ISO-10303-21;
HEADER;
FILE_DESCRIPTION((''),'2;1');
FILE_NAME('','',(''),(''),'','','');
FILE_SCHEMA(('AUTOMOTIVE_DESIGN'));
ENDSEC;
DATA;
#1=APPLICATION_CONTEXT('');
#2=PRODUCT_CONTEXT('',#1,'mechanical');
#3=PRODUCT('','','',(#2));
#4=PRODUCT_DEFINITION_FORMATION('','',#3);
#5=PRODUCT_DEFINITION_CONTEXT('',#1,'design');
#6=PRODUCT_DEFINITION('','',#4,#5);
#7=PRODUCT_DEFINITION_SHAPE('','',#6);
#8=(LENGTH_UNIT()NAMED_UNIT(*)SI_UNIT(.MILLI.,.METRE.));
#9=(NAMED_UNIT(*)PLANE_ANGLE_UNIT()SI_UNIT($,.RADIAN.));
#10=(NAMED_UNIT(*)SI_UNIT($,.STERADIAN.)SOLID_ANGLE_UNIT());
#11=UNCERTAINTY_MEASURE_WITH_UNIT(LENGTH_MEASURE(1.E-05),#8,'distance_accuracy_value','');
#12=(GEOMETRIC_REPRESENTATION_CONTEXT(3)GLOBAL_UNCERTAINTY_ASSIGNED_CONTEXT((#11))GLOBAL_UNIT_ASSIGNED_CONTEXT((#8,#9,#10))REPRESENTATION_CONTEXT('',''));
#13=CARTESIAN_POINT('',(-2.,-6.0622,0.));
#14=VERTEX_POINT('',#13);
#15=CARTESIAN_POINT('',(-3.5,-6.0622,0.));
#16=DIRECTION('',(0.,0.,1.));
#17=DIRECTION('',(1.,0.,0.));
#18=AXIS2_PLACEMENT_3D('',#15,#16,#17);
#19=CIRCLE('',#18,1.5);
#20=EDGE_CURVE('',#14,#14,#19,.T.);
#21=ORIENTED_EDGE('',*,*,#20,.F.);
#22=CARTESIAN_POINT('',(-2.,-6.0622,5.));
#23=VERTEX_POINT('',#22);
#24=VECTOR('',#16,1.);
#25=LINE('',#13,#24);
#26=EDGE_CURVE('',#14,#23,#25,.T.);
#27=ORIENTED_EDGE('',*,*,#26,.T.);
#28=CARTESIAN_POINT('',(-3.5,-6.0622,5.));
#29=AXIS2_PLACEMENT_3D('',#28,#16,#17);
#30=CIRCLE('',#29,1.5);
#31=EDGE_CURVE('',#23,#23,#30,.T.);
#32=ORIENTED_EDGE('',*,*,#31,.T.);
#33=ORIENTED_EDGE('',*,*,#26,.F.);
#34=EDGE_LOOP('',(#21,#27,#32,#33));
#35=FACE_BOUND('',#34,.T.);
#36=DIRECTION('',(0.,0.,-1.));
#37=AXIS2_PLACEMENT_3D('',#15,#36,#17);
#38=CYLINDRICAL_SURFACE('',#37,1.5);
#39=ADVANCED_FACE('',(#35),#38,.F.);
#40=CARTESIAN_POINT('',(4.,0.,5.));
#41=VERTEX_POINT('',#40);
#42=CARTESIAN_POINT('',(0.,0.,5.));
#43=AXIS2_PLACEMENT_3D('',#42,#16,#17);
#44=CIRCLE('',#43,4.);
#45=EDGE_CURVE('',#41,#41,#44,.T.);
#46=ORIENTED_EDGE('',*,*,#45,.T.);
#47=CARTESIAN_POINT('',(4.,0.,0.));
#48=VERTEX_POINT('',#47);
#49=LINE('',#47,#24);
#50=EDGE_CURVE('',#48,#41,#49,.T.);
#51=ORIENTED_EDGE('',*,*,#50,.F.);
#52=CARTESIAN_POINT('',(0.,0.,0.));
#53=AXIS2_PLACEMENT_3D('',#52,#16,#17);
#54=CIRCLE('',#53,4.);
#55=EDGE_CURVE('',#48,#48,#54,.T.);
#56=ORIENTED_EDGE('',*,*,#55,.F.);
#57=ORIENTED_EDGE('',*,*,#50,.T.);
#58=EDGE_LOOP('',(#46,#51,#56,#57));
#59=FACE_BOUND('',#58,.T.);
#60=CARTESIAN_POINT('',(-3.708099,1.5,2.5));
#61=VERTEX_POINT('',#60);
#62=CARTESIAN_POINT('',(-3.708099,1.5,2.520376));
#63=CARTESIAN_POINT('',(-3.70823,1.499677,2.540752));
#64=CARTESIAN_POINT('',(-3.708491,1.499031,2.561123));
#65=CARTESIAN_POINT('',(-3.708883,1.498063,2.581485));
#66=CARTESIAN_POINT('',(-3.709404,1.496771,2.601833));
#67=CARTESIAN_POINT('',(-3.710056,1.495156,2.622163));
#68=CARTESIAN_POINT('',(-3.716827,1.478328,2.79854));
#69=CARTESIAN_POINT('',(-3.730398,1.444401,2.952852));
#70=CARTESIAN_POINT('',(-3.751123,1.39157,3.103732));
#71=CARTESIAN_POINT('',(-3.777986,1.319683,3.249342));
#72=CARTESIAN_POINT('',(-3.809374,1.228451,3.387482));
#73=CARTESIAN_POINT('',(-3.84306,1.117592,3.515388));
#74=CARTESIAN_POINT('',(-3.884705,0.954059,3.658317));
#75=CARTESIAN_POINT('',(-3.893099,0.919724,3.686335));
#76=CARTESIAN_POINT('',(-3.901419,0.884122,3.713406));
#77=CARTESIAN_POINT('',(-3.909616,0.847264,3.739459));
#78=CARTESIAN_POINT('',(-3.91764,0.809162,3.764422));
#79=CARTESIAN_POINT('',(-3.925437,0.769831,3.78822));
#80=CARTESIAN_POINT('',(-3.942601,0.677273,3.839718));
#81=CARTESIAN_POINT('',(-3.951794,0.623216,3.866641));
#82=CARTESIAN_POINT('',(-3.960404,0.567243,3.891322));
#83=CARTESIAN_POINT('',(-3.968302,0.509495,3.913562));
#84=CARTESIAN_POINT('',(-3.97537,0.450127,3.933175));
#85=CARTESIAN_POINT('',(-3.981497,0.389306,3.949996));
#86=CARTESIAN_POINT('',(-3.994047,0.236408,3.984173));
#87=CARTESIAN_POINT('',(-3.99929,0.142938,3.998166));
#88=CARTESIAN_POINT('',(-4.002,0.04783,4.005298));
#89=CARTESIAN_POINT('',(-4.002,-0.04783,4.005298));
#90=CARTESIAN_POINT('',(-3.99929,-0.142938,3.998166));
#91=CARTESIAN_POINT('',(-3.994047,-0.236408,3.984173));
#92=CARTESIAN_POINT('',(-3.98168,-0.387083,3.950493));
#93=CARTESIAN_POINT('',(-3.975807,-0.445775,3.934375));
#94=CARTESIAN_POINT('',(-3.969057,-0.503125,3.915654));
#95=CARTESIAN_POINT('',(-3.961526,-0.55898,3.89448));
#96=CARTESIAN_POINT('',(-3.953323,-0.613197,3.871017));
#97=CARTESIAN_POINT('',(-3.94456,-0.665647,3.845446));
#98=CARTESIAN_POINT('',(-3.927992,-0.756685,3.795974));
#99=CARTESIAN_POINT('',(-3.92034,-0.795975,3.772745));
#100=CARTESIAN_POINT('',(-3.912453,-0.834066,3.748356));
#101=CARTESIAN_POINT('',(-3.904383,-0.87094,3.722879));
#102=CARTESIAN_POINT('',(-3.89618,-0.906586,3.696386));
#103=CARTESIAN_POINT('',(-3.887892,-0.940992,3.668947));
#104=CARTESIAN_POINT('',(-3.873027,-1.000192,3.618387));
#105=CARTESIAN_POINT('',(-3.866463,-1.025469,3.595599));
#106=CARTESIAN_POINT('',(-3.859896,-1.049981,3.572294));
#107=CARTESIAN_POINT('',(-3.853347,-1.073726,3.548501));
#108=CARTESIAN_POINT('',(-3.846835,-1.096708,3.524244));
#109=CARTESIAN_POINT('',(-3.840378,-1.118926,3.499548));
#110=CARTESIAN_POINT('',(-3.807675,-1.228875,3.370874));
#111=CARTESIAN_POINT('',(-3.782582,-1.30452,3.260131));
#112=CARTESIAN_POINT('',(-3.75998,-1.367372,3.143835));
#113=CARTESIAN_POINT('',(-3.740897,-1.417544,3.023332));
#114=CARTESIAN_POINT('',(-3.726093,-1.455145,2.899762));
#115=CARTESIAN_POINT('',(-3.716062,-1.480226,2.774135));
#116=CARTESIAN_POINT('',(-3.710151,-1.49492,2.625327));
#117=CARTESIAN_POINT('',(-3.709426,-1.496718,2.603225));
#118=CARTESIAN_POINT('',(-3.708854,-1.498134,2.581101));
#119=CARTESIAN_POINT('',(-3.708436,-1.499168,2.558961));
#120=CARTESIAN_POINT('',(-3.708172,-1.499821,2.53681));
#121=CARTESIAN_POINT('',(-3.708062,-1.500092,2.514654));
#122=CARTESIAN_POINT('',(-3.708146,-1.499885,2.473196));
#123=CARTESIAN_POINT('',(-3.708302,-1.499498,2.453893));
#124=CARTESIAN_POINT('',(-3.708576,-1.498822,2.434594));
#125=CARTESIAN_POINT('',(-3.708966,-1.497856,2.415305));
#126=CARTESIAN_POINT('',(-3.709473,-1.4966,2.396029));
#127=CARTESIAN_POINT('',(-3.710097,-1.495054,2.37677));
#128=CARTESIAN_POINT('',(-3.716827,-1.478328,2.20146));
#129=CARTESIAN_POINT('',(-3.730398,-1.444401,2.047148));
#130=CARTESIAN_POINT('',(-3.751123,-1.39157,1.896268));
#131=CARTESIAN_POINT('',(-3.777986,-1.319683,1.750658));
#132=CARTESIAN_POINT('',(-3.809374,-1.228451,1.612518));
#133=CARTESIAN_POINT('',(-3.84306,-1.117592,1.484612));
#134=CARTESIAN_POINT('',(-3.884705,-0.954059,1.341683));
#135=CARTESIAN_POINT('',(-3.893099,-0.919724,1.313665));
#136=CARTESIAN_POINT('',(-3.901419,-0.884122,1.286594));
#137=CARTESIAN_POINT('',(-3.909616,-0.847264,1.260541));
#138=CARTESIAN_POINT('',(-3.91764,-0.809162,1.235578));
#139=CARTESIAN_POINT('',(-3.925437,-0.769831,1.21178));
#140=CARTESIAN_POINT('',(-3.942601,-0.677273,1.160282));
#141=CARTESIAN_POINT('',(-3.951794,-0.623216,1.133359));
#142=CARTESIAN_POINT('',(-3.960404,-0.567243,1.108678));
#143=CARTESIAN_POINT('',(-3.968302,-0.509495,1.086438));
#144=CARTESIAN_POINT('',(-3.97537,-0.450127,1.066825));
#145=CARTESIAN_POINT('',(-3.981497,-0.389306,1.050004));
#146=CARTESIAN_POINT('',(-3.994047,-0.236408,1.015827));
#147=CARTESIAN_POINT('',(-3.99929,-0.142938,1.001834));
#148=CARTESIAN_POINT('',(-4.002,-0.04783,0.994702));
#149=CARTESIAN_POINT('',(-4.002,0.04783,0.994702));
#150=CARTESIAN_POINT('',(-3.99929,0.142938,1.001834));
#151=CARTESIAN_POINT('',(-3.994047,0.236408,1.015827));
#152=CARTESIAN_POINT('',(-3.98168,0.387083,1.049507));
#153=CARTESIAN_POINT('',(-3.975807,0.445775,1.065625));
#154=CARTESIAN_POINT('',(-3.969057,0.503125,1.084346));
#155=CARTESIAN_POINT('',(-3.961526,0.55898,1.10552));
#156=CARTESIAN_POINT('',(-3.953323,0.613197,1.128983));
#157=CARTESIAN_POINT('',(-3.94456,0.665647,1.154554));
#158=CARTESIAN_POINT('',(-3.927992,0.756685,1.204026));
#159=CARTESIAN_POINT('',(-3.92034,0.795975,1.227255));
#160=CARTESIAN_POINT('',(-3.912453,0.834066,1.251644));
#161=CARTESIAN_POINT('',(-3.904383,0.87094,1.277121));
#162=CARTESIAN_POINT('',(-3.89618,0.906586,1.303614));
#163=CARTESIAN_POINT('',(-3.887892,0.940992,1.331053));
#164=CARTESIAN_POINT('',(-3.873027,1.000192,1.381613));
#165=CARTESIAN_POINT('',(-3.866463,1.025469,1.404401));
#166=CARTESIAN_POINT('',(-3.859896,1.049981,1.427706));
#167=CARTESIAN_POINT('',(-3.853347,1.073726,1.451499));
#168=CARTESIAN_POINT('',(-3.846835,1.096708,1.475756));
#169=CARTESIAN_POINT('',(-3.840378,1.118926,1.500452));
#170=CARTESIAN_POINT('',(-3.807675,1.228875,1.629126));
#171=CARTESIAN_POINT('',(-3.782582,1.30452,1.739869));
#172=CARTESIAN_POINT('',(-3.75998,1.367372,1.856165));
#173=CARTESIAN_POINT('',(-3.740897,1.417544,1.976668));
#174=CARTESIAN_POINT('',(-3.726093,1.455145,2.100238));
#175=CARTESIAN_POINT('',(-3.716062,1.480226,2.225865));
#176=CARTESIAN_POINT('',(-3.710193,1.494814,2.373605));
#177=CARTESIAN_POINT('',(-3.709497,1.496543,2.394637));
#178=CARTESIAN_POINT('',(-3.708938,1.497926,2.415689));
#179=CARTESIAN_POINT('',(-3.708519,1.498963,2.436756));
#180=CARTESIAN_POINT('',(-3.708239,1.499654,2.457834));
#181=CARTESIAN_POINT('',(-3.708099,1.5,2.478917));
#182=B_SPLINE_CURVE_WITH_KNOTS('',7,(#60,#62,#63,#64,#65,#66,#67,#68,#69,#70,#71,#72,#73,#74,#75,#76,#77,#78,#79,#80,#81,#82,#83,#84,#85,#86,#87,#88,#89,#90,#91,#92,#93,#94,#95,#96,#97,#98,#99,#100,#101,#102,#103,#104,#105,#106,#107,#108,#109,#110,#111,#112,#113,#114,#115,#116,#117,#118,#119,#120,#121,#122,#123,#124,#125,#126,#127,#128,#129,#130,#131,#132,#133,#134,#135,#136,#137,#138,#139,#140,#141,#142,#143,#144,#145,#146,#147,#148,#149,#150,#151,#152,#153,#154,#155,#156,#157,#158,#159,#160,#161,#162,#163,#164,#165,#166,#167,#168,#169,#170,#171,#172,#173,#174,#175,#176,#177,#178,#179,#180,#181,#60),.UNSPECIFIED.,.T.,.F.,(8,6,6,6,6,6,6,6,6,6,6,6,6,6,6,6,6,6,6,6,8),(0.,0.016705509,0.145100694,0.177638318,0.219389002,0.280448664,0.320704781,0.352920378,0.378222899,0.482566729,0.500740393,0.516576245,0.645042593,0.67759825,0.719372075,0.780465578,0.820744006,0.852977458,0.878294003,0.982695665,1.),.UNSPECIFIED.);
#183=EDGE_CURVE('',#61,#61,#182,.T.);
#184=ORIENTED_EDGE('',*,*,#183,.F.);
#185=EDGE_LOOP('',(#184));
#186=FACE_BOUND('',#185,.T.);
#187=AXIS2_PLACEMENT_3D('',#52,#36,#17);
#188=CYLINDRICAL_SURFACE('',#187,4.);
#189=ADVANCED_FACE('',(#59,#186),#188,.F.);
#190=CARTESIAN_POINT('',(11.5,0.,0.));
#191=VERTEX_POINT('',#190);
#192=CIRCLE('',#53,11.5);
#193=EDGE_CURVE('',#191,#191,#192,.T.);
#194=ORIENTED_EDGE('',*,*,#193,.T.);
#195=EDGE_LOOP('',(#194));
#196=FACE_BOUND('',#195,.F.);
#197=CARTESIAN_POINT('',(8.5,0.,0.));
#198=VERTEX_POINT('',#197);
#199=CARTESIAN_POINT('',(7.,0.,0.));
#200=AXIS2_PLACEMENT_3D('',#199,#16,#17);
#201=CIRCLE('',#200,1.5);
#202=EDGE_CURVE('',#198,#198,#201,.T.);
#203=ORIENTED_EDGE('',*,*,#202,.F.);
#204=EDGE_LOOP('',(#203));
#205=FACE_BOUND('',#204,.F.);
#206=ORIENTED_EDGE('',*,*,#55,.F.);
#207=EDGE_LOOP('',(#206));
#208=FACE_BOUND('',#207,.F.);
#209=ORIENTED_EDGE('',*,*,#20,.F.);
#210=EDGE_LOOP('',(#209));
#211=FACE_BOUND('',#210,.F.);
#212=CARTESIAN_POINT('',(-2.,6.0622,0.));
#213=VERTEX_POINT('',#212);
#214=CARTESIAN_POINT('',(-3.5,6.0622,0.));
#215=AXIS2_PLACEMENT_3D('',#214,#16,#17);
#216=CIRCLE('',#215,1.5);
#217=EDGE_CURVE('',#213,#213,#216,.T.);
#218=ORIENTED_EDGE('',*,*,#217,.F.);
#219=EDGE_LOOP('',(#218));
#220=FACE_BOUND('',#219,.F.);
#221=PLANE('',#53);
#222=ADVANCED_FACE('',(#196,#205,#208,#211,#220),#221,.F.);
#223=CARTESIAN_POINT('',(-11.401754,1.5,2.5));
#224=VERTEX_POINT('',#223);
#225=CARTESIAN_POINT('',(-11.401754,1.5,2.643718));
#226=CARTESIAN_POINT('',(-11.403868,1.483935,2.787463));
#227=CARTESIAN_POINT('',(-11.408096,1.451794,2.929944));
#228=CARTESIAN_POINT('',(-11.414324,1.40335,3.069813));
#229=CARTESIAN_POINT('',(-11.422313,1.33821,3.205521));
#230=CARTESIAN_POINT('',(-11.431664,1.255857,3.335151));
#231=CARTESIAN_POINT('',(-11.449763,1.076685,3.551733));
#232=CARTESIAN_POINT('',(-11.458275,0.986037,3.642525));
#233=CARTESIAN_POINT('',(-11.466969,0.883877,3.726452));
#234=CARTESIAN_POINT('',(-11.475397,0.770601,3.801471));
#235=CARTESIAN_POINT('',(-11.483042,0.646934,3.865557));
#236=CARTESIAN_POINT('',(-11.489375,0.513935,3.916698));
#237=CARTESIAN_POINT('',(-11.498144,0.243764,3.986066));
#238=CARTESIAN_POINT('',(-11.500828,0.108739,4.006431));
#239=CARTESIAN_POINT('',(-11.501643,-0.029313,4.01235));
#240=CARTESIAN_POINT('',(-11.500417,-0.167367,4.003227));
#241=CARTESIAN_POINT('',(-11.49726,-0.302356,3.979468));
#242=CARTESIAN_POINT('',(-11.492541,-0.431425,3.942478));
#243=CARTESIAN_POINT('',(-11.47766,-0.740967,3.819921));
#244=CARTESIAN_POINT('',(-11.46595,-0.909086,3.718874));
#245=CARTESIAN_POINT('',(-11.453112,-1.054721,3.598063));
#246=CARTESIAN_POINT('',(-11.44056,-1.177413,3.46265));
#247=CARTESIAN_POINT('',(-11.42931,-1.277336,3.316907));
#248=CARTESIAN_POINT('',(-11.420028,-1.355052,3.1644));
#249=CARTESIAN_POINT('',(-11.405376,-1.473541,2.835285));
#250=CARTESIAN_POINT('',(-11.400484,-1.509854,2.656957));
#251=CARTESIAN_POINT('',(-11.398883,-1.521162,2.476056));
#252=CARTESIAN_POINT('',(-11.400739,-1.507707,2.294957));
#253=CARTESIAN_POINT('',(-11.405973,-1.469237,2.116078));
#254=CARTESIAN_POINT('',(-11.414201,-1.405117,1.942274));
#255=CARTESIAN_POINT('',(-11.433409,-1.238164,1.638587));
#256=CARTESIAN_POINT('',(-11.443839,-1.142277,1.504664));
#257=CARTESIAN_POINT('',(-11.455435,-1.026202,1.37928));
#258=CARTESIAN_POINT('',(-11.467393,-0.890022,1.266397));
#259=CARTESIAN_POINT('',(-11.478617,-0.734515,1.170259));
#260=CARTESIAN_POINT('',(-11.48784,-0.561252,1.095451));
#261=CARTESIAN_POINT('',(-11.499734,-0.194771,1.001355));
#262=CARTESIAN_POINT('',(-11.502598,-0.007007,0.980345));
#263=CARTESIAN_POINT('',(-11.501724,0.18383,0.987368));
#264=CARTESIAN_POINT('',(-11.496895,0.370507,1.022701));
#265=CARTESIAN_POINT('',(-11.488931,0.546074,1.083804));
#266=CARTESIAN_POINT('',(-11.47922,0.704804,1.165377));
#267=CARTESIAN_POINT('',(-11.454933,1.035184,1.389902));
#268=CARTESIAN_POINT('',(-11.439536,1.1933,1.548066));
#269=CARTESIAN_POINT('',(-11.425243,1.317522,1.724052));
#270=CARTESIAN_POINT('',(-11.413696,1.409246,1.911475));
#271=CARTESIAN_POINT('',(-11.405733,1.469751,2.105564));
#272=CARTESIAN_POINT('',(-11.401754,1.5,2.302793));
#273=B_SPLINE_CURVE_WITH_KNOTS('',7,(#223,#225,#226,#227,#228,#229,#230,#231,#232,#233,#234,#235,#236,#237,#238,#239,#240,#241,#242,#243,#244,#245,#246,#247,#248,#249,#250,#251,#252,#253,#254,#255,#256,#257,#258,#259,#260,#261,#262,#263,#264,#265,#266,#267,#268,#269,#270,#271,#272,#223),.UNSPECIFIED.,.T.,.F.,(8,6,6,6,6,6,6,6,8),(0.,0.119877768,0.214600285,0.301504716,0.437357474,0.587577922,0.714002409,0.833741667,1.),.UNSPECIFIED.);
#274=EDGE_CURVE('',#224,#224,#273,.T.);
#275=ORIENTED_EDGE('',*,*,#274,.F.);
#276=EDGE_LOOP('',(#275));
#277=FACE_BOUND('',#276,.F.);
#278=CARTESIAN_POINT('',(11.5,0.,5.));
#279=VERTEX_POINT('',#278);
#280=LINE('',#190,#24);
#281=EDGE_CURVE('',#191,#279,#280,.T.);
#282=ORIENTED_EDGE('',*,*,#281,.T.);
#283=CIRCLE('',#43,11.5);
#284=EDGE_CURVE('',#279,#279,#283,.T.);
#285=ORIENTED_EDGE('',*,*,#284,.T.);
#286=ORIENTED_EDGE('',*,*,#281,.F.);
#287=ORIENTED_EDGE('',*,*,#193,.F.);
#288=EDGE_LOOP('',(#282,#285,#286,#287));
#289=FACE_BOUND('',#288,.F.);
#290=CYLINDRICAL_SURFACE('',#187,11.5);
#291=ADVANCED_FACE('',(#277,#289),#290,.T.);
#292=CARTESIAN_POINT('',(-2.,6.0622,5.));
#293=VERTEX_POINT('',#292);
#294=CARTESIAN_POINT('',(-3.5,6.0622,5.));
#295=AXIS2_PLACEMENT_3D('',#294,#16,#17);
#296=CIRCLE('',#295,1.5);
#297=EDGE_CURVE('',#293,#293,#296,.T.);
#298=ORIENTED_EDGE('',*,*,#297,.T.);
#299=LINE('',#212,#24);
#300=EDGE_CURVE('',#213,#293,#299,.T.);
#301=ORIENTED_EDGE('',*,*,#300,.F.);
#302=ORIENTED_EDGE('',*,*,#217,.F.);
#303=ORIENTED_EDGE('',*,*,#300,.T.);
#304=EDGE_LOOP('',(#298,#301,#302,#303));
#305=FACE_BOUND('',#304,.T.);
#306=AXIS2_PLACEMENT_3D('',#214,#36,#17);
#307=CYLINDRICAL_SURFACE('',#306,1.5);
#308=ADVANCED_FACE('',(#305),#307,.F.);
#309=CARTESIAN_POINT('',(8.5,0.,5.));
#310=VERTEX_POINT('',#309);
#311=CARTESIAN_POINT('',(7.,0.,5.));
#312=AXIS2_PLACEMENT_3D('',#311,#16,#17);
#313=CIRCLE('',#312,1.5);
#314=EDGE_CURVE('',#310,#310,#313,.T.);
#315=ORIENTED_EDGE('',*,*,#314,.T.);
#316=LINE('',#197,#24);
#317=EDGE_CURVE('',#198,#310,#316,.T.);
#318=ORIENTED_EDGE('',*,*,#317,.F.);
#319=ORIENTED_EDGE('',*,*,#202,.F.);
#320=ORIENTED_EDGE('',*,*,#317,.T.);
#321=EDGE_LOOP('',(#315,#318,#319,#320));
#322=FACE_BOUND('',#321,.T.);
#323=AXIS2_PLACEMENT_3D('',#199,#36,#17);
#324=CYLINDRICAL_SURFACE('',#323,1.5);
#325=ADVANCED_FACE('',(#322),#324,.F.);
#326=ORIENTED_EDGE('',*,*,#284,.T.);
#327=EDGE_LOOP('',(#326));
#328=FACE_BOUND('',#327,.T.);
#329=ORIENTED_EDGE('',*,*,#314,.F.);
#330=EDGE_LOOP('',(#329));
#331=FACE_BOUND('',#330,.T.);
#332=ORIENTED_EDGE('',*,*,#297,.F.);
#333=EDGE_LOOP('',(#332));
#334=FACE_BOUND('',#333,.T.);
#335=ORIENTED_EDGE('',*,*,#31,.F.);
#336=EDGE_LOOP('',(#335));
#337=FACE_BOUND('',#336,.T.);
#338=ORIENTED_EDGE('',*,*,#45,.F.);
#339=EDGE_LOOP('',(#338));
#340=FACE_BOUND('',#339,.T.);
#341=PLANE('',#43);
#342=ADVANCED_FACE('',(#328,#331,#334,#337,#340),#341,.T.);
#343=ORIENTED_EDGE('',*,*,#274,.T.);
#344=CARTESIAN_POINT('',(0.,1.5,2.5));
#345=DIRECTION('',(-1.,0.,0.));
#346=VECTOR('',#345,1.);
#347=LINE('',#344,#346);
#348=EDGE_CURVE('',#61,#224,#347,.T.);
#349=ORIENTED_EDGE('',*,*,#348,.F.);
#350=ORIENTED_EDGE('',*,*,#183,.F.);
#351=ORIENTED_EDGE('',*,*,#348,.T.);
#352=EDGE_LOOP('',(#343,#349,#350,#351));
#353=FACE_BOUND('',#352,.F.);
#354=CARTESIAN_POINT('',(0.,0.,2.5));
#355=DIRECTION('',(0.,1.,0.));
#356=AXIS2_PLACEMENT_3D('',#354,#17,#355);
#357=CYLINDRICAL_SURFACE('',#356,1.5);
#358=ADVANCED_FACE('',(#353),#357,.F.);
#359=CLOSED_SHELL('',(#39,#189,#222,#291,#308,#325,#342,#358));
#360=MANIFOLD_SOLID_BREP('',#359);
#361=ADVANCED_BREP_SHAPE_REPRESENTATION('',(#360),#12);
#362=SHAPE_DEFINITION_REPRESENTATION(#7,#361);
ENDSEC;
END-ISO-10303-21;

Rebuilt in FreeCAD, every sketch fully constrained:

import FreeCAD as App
import Part
import Sketcher
Q = App.Units.Quantity

doc = App.newDocument("Part")
params = doc.addObject("Spreadsheet::Sheet", "Params")
for row, (alias, value) in enumerate([
    ("sketch1_diameter", "23 mm"),
    ("sketch1_diameter2", "3 mm"),
    ("sketch1_diameter3", "8 mm"),
    ("pad1_length", "5 mm"),
    ("sketch2_diameter", "3 mm"),
], start=1):
    params.set(f"A{row}", alias)
    params.set(f"B{row}", "=" + value)
    params.setAlias(f"B{row}", alias)

body = doc.addObject("PartDesign::Body", "Body")

sketch1 = body.newObject("Sketcher::SketchObject", "Sketch")
sketch1.AttachmentSupport = (doc.getObject("XY_Plane"), [""])
sketch1.MapMode = "FlatFace"
sketch1.addGeometry([
    Part.Circle(App.Vector(0, 0, 0), App.Vector(0, 0, 1), 11.5),
    Part.Circle(App.Vector(-3.5, -6.1, 0), App.Vector(0, 0, 1), 1.5),
    Part.Circle(App.Vector(-3.5, 6.1, 0), App.Vector(0, 0, 1), 1.5),
    Part.Circle(App.Vector(0, 0, 0), App.Vector(0, 0, 1), 4),
    Part.Circle(App.Vector(7, 0, 0), App.Vector(0, 0, 1), 1.5),
], False)
sketch1.addConstraint([
    Sketcher.Constraint("Coincident", 0, 3, -1, 1),
    Sketcher.Constraint("Coincident", 3, 3, -1, 1),
    Sketcher.Constraint("Equal", 1, 2),
    Sketcher.Constraint("Equal", 2, 4),
    Sketcher.Constraint("Symmetric", 1, 3, 2, 3, -1),
    Sketcher.Constraint("PointOnObject", 4, 3, -1),
    Sketcher.Constraint("Diameter", 0, Q("23 mm")),
    Sketcher.Constraint("Diameter", 1, Q("3 mm")),
    Sketcher.Constraint("Diameter", 3, Q("8 mm")),
    Sketcher.Constraint("DistanceX", -1, 1, 4, 3, Q("7 mm")),
    Sketcher.Constraint("DistanceX", 1, 3, -1, 1, Q("3.5 mm")),
    Sketcher.Constraint("DistanceY", 1, 3, -1, 1, Q("6.0622 mm")),
])
sketch1.setExpression("Constraints[6]", "Params.sketch1_diameter")
sketch1.setExpression("Constraints[7]", "Params.sketch1_diameter2")
sketch1.setExpression("Constraints[8]", "Params.sketch1_diameter3")
pad1 = body.newObject("PartDesign::Pad", "Pad")
pad1.Profile = sketch1
pad1.setExpression("Length", "Params.pad1_length")

sketch2 = body.newObject("Sketcher::SketchObject", "Sketch001")
sketch2.AttachmentSupport = (doc.getObject("YZ_Plane"), [""])
sketch2.MapMode = "FlatFace"
sketch2.addGeometry(Part.Circle(App.Vector(0, 2.5, 0), App.Vector(0, 0, 1), 1.5), False)
sketch2.addConstraint([
    Sketcher.Constraint("PointOnObject", 0, 3, -2),
    Sketcher.Constraint("Diameter", 0, Q("3 mm")),
    Sketcher.Constraint("DistanceY", -1, 1, 0, 3, Q("2.5 mm")),
])
sketch2.setExpression("Constraints[1]", "Params.sketch2_diameter")
pocket1 = body.newObject("PartDesign::Pocket", "Pocket")
pocket1.Profile = sketch2
pocket1.Type = "ThroughAll"

doc.recompute()
